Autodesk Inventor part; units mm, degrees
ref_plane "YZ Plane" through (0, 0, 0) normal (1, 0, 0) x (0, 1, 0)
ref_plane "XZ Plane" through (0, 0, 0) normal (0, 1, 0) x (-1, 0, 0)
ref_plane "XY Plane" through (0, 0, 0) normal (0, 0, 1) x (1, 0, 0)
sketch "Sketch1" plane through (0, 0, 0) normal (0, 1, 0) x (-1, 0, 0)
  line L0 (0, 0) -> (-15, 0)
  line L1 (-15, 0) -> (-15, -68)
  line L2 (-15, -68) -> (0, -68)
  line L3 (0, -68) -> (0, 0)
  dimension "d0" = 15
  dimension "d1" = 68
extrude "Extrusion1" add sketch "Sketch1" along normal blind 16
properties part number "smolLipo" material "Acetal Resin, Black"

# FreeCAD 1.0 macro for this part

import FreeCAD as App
import Part
import Sketcher
from FreeCAD import Vector
Q = App.Units.Quantity


def add_polygon(sketch, points):
    """Adds a closed chain of lines whose ends are joined by coincident constraints."""
    first, n = sketch.GeometryCount, len(points)
    for a, b in zip(points, points[1:] + points[:1]):
        sketch.addGeometry(Part.LineSegment(App.Vector(*a, 0), App.Vector(*b, 0)), False)
    for i in range(n):
        sketch.addConstraint(Sketcher.Constraint("Coincident", first + i, 2, first + (i + 1) % n, 1))

doc = App.newDocument("Part")
body = doc.addObject("PartDesign::Body", "Body")

# Sketch on XZ plane
sketch1 = body.newObject("Sketcher::SketchObject", "Sketch")
sketch1.AttachmentSupport = (doc.getObject("XZ_Plane"), [""])
sketch1.MapMode = "FlatFace"
add_polygon(sketch1, [(0, -68), (0, 0), (15, 0), (15, -68)])  # lines 0-3
sketch1.addConstraint([
    Sketcher.Constraint("Vertical", 0),
    Sketcher.Constraint("Horizontal", 1),
    Sketcher.Constraint("Vertical", 2),
    Sketcher.Constraint("Horizontal", 3),
    Sketcher.Constraint("Coincident", 0, 2, -1, 1),
    Sketcher.Constraint("DistanceX", 1, 1, 1, 2, Q("15 mm")),
    Sketcher.Constraint("DistanceY", 0, 1, 0, 2, Q("68 mm")),
])
pad1 = body.newObject("PartDesign::Pad", "Pad")
pad1.Profile = sketch1
pad1.Length = 16
pad1.Reversed = True

doc.recompute()
